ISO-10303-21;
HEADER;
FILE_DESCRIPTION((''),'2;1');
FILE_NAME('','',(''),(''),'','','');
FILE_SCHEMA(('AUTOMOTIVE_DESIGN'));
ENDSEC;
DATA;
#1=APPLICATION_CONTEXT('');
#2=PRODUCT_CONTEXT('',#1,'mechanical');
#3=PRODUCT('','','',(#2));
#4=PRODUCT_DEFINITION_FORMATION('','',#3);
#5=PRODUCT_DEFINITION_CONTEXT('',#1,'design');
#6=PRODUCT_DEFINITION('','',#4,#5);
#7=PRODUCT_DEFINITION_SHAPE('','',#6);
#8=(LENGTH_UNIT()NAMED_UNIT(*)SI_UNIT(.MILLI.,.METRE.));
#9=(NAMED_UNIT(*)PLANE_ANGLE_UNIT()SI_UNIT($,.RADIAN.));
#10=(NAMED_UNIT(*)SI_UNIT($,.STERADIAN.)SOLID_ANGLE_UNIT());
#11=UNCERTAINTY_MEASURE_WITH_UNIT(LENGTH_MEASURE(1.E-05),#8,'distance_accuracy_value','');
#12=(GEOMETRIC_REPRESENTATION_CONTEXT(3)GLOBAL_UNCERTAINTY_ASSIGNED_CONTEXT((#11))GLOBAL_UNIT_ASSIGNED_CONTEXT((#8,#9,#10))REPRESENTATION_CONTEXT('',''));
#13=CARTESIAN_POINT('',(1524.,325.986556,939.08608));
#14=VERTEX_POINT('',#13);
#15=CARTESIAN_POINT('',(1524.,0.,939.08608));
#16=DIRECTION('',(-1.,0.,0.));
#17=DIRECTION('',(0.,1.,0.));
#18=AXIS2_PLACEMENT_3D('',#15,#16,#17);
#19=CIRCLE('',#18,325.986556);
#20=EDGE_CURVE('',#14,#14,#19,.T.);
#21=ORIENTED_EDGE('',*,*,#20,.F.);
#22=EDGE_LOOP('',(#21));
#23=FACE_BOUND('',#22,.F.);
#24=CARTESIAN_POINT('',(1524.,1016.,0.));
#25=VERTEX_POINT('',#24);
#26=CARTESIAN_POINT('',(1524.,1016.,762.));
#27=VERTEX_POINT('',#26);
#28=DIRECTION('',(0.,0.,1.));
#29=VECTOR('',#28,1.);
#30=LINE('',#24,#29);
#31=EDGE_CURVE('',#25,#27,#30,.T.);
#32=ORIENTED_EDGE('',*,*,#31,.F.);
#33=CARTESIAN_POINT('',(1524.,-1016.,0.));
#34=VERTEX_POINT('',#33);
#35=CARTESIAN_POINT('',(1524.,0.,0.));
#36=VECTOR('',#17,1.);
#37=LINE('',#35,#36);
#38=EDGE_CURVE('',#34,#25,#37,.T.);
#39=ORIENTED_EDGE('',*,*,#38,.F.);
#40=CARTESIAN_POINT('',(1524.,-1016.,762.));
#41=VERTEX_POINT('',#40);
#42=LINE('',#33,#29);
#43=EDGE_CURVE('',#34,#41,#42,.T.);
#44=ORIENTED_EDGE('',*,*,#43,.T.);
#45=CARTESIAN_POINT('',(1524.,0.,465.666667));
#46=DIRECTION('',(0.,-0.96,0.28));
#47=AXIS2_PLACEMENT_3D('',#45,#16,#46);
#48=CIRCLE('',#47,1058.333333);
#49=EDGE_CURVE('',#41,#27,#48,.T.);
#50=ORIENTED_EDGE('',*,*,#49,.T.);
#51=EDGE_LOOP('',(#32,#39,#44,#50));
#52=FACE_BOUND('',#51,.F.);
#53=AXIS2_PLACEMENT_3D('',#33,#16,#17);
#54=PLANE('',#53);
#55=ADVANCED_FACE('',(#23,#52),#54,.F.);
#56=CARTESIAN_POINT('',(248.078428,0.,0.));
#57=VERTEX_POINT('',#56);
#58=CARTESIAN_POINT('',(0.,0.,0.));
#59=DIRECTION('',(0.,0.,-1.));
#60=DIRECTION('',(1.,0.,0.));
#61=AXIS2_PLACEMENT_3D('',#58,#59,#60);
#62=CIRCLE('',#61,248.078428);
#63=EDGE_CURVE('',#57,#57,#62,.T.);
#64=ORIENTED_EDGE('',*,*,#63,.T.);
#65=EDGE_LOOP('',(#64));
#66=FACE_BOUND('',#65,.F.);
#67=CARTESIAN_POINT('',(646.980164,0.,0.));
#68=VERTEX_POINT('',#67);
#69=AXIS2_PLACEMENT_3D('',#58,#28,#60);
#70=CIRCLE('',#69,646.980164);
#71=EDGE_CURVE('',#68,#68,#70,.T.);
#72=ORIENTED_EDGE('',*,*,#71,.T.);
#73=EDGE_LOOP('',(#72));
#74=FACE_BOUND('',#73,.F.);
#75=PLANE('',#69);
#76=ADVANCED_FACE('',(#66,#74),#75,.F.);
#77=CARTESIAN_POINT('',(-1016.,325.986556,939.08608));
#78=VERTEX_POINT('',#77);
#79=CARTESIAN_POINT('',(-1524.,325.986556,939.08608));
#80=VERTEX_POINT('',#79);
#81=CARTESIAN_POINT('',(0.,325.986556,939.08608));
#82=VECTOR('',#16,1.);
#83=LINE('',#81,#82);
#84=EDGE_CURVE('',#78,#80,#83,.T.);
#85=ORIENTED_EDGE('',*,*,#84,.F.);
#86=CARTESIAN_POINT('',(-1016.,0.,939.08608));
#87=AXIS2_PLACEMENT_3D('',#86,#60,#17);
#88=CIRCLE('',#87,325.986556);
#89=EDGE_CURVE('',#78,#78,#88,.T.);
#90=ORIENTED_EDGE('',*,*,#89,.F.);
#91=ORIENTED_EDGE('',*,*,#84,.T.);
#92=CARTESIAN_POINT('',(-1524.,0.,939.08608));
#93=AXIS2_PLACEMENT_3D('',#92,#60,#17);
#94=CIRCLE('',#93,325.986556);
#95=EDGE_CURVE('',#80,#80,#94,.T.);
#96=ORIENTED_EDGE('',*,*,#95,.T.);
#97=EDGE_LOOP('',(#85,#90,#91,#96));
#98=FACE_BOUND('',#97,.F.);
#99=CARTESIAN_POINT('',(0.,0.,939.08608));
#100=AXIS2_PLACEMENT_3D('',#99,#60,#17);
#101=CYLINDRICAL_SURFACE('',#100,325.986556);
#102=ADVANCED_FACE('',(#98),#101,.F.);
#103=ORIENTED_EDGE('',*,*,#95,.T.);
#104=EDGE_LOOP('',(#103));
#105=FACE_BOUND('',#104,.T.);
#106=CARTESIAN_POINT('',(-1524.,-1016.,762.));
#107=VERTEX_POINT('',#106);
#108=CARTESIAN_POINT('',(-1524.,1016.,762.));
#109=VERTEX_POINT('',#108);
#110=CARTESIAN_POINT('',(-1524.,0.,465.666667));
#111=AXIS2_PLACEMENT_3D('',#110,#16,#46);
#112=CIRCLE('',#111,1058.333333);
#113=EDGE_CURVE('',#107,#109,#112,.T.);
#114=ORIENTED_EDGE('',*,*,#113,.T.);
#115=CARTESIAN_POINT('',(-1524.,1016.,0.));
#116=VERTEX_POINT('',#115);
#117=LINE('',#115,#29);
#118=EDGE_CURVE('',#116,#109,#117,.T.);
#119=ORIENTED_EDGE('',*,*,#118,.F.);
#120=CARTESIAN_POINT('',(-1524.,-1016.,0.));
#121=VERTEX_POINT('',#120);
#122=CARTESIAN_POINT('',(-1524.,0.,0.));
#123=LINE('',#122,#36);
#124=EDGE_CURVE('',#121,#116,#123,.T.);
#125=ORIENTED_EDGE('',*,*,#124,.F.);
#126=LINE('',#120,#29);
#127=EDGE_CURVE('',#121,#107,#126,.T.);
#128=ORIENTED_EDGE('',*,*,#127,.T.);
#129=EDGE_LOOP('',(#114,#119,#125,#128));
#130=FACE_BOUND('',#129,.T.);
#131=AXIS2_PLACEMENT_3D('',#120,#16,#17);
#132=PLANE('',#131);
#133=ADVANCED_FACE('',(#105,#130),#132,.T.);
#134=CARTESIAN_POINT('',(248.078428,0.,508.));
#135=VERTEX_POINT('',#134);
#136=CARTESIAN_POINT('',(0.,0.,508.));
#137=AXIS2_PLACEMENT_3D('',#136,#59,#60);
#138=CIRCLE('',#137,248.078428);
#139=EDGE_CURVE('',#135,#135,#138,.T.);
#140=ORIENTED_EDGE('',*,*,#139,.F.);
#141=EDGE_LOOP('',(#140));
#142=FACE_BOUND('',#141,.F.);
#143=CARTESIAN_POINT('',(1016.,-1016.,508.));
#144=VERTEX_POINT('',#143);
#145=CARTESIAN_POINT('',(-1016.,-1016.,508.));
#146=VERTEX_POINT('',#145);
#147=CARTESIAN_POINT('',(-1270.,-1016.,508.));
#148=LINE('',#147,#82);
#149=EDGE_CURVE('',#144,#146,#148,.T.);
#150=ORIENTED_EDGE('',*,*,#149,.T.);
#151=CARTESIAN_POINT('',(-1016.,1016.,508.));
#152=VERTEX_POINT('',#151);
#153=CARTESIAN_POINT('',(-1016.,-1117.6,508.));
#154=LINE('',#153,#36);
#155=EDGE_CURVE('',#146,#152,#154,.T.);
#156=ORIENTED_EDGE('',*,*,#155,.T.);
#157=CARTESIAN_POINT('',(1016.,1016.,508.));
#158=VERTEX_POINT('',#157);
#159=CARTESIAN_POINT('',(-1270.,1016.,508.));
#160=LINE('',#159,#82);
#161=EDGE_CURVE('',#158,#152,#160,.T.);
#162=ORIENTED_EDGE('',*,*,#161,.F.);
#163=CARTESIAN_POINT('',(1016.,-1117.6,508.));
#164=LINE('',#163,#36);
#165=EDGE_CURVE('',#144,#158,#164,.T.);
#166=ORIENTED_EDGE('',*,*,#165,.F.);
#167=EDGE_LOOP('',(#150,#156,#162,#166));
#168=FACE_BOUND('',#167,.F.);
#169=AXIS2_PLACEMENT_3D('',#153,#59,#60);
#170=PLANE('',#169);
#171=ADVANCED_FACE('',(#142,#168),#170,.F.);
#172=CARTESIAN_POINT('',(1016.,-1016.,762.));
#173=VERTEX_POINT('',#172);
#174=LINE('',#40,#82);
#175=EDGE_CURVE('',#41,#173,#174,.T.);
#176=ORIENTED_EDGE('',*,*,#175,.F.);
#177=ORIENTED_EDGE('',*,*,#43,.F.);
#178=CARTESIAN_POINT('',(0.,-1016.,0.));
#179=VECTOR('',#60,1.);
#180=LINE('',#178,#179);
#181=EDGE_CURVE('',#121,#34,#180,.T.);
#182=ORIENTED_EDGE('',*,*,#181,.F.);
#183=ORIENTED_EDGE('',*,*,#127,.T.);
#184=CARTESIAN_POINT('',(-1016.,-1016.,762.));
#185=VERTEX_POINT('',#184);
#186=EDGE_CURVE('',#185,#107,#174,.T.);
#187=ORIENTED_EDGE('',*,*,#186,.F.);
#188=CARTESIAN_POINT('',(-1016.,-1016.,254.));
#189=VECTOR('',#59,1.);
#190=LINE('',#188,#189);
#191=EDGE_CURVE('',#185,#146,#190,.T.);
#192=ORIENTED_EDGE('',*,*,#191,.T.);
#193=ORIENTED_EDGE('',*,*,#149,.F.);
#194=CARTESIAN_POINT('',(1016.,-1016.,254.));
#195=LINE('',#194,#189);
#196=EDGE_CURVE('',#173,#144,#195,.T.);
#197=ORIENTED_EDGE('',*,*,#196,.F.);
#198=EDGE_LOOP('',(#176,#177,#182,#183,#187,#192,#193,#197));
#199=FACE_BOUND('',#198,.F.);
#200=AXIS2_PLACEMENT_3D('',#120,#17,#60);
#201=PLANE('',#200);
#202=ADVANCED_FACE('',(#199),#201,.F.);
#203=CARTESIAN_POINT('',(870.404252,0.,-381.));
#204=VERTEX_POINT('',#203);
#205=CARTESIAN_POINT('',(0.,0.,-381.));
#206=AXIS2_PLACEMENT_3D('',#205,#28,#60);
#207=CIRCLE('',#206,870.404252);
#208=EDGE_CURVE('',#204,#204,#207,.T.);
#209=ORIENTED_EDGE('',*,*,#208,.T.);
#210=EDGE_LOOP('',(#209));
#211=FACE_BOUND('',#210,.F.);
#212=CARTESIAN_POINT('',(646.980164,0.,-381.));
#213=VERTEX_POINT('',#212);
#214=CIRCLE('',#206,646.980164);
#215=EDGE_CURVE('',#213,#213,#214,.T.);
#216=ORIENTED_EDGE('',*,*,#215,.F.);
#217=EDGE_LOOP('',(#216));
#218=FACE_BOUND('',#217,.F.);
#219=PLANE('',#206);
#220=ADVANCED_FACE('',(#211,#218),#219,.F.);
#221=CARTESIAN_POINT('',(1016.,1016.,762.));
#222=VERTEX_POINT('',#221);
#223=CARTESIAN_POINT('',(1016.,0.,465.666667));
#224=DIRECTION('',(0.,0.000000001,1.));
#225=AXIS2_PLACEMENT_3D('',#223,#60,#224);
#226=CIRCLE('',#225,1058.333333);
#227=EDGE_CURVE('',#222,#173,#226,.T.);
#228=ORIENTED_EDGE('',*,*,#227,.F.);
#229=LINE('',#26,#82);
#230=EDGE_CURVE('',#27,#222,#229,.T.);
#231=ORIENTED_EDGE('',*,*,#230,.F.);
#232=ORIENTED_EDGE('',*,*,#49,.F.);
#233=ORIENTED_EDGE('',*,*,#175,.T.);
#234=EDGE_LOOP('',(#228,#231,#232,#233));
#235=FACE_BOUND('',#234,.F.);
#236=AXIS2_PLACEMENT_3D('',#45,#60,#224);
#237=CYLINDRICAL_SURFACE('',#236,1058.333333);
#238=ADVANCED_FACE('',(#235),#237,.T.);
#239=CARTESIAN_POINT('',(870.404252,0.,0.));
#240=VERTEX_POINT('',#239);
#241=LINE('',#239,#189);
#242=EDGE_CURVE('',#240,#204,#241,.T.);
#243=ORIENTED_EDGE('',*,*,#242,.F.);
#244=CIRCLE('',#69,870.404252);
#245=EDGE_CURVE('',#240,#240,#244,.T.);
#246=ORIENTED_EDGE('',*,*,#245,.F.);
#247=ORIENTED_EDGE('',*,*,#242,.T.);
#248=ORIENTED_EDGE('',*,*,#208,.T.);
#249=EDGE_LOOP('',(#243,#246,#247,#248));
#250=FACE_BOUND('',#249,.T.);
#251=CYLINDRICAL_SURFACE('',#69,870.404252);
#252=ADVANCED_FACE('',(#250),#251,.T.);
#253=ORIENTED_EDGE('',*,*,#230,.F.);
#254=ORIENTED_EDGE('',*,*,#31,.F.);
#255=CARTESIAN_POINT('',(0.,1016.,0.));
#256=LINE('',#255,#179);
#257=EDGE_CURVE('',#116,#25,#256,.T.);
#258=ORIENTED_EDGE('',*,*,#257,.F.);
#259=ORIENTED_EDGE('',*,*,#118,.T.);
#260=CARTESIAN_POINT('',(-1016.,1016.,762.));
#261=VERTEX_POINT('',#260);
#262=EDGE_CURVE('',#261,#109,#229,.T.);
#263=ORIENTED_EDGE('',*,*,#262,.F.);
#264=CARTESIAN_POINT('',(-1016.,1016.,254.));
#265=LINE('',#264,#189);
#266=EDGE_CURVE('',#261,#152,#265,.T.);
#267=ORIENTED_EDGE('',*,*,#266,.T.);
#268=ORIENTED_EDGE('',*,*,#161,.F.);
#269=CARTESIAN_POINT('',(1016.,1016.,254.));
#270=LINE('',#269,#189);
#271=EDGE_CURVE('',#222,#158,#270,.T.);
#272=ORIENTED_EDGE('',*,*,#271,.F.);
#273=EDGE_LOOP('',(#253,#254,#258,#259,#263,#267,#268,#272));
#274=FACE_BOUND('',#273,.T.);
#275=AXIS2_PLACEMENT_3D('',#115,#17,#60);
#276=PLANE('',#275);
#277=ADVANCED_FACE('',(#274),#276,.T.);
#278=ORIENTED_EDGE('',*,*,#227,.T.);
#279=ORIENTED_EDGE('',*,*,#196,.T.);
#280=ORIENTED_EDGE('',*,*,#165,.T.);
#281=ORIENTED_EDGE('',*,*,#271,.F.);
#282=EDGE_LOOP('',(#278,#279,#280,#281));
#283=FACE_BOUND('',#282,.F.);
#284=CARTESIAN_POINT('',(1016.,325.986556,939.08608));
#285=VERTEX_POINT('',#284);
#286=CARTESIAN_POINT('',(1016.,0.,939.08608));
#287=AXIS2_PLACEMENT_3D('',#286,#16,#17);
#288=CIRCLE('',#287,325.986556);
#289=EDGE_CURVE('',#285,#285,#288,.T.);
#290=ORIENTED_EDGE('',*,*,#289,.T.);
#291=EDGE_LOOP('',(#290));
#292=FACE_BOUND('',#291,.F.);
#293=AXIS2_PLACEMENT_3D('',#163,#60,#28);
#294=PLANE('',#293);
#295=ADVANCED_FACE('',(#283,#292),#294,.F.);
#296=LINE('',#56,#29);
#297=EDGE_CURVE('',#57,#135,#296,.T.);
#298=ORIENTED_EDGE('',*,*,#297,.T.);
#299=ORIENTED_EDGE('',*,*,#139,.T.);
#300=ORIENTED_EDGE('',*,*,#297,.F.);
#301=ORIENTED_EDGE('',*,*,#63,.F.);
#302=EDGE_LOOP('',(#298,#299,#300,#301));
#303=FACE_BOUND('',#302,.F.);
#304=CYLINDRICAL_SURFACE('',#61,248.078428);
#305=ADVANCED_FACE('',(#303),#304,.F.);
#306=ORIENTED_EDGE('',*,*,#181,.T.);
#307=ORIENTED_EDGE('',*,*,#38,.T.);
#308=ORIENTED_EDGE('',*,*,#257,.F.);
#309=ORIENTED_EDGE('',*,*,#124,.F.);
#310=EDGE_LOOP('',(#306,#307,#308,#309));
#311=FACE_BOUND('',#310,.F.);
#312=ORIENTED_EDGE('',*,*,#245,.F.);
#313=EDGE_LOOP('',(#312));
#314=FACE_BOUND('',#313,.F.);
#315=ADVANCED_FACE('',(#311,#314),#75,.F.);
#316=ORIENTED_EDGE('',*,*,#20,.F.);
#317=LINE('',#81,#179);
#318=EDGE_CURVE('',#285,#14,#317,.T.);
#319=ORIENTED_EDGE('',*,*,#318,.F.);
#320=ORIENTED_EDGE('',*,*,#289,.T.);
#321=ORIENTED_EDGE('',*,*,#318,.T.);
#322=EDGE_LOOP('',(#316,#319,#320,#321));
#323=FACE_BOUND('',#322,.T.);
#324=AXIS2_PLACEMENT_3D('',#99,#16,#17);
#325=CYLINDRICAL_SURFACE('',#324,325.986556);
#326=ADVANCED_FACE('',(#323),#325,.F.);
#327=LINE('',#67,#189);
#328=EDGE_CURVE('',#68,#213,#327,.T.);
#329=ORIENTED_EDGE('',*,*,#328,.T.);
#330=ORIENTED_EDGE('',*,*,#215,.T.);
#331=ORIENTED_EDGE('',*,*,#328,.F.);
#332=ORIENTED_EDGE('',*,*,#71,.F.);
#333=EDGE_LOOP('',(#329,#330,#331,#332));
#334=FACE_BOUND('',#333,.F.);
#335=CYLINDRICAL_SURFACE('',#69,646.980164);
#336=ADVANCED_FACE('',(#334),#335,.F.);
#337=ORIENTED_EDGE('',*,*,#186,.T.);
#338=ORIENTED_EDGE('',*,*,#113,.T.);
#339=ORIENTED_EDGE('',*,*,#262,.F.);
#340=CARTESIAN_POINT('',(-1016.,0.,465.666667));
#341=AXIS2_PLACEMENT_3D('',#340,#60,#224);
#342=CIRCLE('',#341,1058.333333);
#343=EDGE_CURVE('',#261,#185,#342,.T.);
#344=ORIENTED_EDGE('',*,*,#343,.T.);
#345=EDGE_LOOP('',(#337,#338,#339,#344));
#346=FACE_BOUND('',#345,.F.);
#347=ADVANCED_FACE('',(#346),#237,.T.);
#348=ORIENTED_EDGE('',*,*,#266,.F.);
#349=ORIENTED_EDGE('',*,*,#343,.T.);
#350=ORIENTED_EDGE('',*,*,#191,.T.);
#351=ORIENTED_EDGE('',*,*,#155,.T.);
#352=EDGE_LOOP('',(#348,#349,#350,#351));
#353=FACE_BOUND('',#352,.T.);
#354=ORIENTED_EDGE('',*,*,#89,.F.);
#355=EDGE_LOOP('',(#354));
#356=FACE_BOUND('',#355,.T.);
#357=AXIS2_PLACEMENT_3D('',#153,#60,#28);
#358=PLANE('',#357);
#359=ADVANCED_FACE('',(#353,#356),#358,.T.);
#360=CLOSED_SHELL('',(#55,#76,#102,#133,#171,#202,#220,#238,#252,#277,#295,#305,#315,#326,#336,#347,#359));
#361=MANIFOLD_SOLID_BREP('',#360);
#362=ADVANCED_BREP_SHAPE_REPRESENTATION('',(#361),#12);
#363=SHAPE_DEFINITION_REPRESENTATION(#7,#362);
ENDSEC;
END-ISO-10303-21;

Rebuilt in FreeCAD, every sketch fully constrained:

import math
import FreeCAD as App
import Part
import Sketcher
from FreeCAD import Vector
Q = App.Units.Quantity

doc = App.newDocument("Part")
body = doc.addObject("PartDesign::Body", "Body")

# Sketch on XY plane
sketch1 = body.newObject("Sketcher::SketchObject", "Sketch")
sketch1.AttachmentSupport = (doc.getObject("XY_Plane"), [""])
sketch1.MapMode = "FlatFace"
sketch1.addGeometry([
    Part.LineSegment(Vector(-1524, 1016, 0), Vector(-1524, -1016, 0)),
    Part.LineSegment(Vector(-1524, -1016, 0), Vector(1524, -1016, 0)),
    Part.LineSegment(Vector(1524, -1016, 0), Vector(1524, 1016, 0)),
    Part.LineSegment(Vector(1524, 1016, 0), Vector(-1524, 1016, 0)),
], False)
sketch1.addConstraint([
    Sketcher.Constraint("Coincident", 0, 2, 1, 1),
    Sketcher.Constraint("Coincident", 1, 2, 2, 1),
    Sketcher.Constraint("Coincident", 2, 2, 3, 1),
    Sketcher.Constraint("Coincident", 3, 2, 0, 1),
    Sketcher.Constraint("Vertical", 0),
    Sketcher.Constraint("Horizontal", 1),
    Sketcher.Constraint("Vertical", 2),
    Sketcher.Constraint("Horizontal", 3),
    Sketcher.Constraint("Symmetric", 0, 2, 2, 2, -1, 1),
    Sketcher.Constraint("DistanceX", 1, 1, 1, 2, Q("120 in")),
    Sketcher.Constraint("DistanceY", 0, 2, 0, 1, Q("80 in")),
])
pad1 = body.newObject("PartDesign::Pad", "Pad")
pad1.Profile = sketch1
pad1.Length = Q("60 in")

# Sketch on YZ plane
sketch2 = body.newObject("Sketcher::SketchObject", "Sketch001")
sketch2.AttachmentSupport = (doc.getObject("YZ_Plane"), [""])
sketch2.MapMode = "FlatFace"
sketch2.AttachmentOffset = App.Placement(Vector(0, 0, 60 * 25.4), App.Rotation())
sketch2.addGeometry([
    Part.ArcOfCircle(Part.Circle(Vector(0, 466, 0), Vector(0, 0, 1), 1058), math.radians(16), math.radians(90)),  # 0
    Part.LineSegment(Vector(1016, 762, 0), Vector(1016, 1524, 0)),  # 1
    Part.LineSegment(Vector(1016, 1524, 0), Vector(0, 1524, 0)),  # 2
    Part.ArcOfCircle(Part.Circle(Vector(0, 466, 0), Vector(0, 0, 1), 1058), math.radians(90), math.radians(164)),  # 3
    Part.LineSegment(Vector(0, 1524, 0), Vector(-1016, 1524, 0)),  # 4
    Part.LineSegment(Vector(-1016, 1524, 0), Vector(-1016, 762, 0)),  # 5
], False)
sketch2.addConstraint([
    Sketcher.Constraint("Coincident", 0, 1, 1, 1),
    Sketcher.Constraint("Coincident", 1, 2, 2, 1),
    Sketcher.Constraint("Coincident", 2, 2, 0, 2),
    Sketcher.Constraint("Coincident", 3, 1, 4, 1),
    Sketcher.Constraint("Coincident", 4, 2, 5, 1),
    Sketcher.Constraint("Coincident", 5, 2, 3, 2),
    Sketcher.Constraint("Vertical", 1),
    Sketcher.Constraint("Horizontal", 2),
    Sketcher.Constraint("Horizontal", 4),
    Sketcher.Constraint("Vertical", 5),
    Sketcher.Constraint("Coincident", 3, 3, 0, 3),
    Sketcher.Constraint("Equal", 0, 3),
    Sketcher.Constraint("PointOnObject", 0, 3, -2),
    Sketcher.Constraint("PointOnObject", 2, 2, -2),
    Sketcher.Constraint("Equal", 2, 4),
    Sketcher.Constraint("Equal", 1, 5),
    Sketcher.Constraint("DistanceX", 2, 2, 2, 1, Q("40 in")),
    Sketcher.Constraint("DistanceY", 1, 1, 1, 2, Q("30 in")),
    Sketcher.Constraint("DistanceY", -1, 1, 1, 2, Q("60 in")),
])
pocket1 = body.newObject("PartDesign::Pocket", "Pocket")
pocket1.Profile = sketch2
pocket1.Type = "ThroughAll"

# Sketch on XZ plane
sketch3 = body.newObject("Sketcher::SketchObject", "Sketch002")
sketch3.AttachmentSupport = (doc.getObject("XZ_Plane"), [""])
sketch3.MapMode = "FlatFace"
sketch3.AttachmentOffset = App.Placement(Vector(0, 0, 44 * 25.4), App.Rotation())
sketch3.addGeometry([
    Part.LineSegment(Vector(-1016, 1824, 0), Vector(-1016, 508, 0)),
    Part.LineSegment(Vector(-1016, 508, 0), Vector(1016, 508, 0)),
    Part.LineSegment(Vector(1016, 508, 0), Vector(1016, 1824, 0)),
    Part.LineSegment(Vector(1016, 1824, 0), Vector(-1016, 1824, 0)),
], False)
sketch3.addConstraint([
    Sketcher.Constraint("Coincident", 0, 2, 1, 1),
    Sketcher.Constraint("Coincident", 1, 2, 2, 1),
    Sketcher.Constraint("Coincident", 2, 2, 3, 1),
    Sketcher.Constraint("Coincident", 3, 2, 0, 1),
    Sketcher.Constraint("Vertical", 0),
    Sketcher.Constraint("Horizontal", 1),
    Sketcher.Constraint("Vertical", 2),
    Sketcher.Constraint("Horizontal", 3),
    Sketcher.Constraint("DistanceX", 1, 1, 1, 2, Q("80 in")),
    Sketcher.Constraint("DistanceX", 0, 2, -1, 1, Q("40 in")),
    Sketcher.Constraint("DistanceY", -1, 1, 0, 2, Q("20 in")),
    Sketcher.Constraint("DistanceY", 0, 2, 0, 1, Q("1315.519816 mm")),
])
pocket2 = body.newObject("PartDesign::Pocket", "Pocket001")
pocket2.Profile = sketch3
pocket2.Type = "ThroughAll"

# Sketch on XY plane
sketch4 = body.newObject("Sketcher::SketchObject", "Sketch003")
sketch4.AttachmentSupport = (doc.getObject("XY_Plane"), [""])
sketch4.MapMode = "FlatFace"
sketch4.addGeometry([
    Part.Circle(Vector(0, 0, 0), Vector(0, 0, 1), 870),
    Part.Circle(Vector(0, 0, 0), Vector(0, 0, 1), 647),
], False)
sketch4.addConstraint([
    Sketcher.Constraint("Coincident", 0, 3, -1, 1),
    Sketcher.Constraint("Coincident", 1, 3, -1, 1),
    Sketcher.Constraint("Diameter", 0, Q("1740.808504 mm")),
    Sketcher.Constraint("Diameter", 1, Q("1293.960327 mm")),
])
pad2 = body.newObject("PartDesign::Pad", "Pad001")
pad2.Profile = sketch4
pad2.Length = Q("15 in")
pad2.Reversed = True

# Sketch on XY plane
sketch5 = body.newObject("Sketcher::SketchObject", "Sketch004")
sketch5.AttachmentSupport = (doc.getObject("XY_Plane"), [""])
sketch5.MapMode = "FlatFace"
sketch5.addGeometry(Part.Circle(Vector(0, 0, 0), Vector(0, 0, 1), 248), False)
sketch5.addConstraint([
    Sketcher.Constraint("Coincident", 0, 3, -1, 1),
    Sketcher.Constraint("Diameter", 0, Q("496.156857 mm")),
])
pocket3 = body.newObject("PartDesign::Pocket", "Pocket002")
pocket3.Profile = sketch5
pocket3.Length = Q("68.3 in")
pocket3.Reversed = True

# Sketch on YZ plane
sketch6 = body.newObject("Sketcher::SketchObject", "Sketch005")
sketch6.AttachmentSupport = (doc.getObject("YZ_Plane"), [""])
sketch6.MapMode = "FlatFace"
sketch6.addGeometry(Part.Circle(Vector(0, 939, 0), Vector(0, 0, 1), 326), False)
sketch6.addConstraint([
    Sketcher.Constraint("PointOnObject", 0, 3, -2),
    Sketcher.Constraint("Diameter", 0, Q("651.973112 mm")),
    Sketcher.Constraint("DistanceY", -1, 1, 0, 3, Q("939.08608 mm")),
])
pocket4 = body.newObject("PartDesign::Pocket", "Pocket003")
pocket4.Profile = sketch6
pocket4.Type = "ThroughAll"
pocket4.Midplane = True

doc.recompute()
